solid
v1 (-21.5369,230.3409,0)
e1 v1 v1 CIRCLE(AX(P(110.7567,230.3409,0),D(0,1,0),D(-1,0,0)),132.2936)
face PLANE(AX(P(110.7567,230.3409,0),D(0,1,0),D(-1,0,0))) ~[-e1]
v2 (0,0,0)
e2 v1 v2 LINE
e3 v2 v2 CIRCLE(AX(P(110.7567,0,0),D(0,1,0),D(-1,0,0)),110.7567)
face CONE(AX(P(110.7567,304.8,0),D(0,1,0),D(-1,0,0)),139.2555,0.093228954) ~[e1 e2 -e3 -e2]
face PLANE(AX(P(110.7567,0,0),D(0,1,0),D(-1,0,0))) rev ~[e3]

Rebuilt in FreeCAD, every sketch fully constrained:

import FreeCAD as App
import Part
import Sketcher
from FreeCAD import Vector


def add_polygon(sketch, points):
    """Adds a closed chain of lines whose ends are joined by coincident constraints."""
    first, n = sketch.GeometryCount, len(points)
    for a, b in zip(points, points[1:] + points[:1]):
        sketch.addGeometry(Part.LineSegment(App.Vector(*a, 0), App.Vector(*b, 0)), False)
    for i in range(n):
        sketch.addConstraint(Sketcher.Constraint("Coincident", first + i, 2, first + (i + 1) % n, 1))

doc = App.newDocument("Part")
body = doc.addObject("PartDesign::Body", "Body")

# Sketch on XY plane
sketch1 = doc.addObject("Sketcher::SketchObject", "Sketch")
body.addObject(sketch1)
sketch1.AttachmentSupport = (doc.XY_Plane, [""])
sketch1.MapMode = "FlatFace"
add_polygon(sketch1, [(0, 0), (111, 0), (111, 230), (-22, 230)])  # lines 0-3
sketch1.addGeometry(Part.LineSegment(Vector(111, 0, 0), Vector(111, 230, 0)), True)  # axis
sketch1.addConstraint(Sketcher.Constraint("Horizontal", 0))
sketch1.addConstraint(Sketcher.Constraint("Vertical", 1))
sketch1.addConstraint(Sketcher.Constraint("Horizontal", 2))
sketch1.addConstraint(Sketcher.Constraint("Vertical", 4))
sketch1.addConstraint(Sketcher.Constraint("Coincident", 3, 2, -1, 1))
sketch1.addConstraint(Sketcher.Constraint("Coincident", 4, 1, 0, 2))
sketch1.addConstraint(Sketcher.Constraint("Horizontal", 2, 2, 4, 2))
sketch1.addConstraint(Sketcher.Constraint("DistanceX", 2, 2, 2, 1, 132.2936))
sketch1.addConstraint(Sketcher.Constraint("DistanceY", 1, 1, 1, 2, 230.341))
sketch1.addConstraint(Sketcher.Constraint("DistanceX", 0, 1, 0, 2, 110.7567))
revolution = doc.addObject("PartDesign::Revolution", "Revolution")
body.addObject(revolution)
revolution.Profile = sketch1
revolution.ReferenceAxis = (sketch1, ["Axis0"])
revolution.Angle = 360

doc.recompute()
